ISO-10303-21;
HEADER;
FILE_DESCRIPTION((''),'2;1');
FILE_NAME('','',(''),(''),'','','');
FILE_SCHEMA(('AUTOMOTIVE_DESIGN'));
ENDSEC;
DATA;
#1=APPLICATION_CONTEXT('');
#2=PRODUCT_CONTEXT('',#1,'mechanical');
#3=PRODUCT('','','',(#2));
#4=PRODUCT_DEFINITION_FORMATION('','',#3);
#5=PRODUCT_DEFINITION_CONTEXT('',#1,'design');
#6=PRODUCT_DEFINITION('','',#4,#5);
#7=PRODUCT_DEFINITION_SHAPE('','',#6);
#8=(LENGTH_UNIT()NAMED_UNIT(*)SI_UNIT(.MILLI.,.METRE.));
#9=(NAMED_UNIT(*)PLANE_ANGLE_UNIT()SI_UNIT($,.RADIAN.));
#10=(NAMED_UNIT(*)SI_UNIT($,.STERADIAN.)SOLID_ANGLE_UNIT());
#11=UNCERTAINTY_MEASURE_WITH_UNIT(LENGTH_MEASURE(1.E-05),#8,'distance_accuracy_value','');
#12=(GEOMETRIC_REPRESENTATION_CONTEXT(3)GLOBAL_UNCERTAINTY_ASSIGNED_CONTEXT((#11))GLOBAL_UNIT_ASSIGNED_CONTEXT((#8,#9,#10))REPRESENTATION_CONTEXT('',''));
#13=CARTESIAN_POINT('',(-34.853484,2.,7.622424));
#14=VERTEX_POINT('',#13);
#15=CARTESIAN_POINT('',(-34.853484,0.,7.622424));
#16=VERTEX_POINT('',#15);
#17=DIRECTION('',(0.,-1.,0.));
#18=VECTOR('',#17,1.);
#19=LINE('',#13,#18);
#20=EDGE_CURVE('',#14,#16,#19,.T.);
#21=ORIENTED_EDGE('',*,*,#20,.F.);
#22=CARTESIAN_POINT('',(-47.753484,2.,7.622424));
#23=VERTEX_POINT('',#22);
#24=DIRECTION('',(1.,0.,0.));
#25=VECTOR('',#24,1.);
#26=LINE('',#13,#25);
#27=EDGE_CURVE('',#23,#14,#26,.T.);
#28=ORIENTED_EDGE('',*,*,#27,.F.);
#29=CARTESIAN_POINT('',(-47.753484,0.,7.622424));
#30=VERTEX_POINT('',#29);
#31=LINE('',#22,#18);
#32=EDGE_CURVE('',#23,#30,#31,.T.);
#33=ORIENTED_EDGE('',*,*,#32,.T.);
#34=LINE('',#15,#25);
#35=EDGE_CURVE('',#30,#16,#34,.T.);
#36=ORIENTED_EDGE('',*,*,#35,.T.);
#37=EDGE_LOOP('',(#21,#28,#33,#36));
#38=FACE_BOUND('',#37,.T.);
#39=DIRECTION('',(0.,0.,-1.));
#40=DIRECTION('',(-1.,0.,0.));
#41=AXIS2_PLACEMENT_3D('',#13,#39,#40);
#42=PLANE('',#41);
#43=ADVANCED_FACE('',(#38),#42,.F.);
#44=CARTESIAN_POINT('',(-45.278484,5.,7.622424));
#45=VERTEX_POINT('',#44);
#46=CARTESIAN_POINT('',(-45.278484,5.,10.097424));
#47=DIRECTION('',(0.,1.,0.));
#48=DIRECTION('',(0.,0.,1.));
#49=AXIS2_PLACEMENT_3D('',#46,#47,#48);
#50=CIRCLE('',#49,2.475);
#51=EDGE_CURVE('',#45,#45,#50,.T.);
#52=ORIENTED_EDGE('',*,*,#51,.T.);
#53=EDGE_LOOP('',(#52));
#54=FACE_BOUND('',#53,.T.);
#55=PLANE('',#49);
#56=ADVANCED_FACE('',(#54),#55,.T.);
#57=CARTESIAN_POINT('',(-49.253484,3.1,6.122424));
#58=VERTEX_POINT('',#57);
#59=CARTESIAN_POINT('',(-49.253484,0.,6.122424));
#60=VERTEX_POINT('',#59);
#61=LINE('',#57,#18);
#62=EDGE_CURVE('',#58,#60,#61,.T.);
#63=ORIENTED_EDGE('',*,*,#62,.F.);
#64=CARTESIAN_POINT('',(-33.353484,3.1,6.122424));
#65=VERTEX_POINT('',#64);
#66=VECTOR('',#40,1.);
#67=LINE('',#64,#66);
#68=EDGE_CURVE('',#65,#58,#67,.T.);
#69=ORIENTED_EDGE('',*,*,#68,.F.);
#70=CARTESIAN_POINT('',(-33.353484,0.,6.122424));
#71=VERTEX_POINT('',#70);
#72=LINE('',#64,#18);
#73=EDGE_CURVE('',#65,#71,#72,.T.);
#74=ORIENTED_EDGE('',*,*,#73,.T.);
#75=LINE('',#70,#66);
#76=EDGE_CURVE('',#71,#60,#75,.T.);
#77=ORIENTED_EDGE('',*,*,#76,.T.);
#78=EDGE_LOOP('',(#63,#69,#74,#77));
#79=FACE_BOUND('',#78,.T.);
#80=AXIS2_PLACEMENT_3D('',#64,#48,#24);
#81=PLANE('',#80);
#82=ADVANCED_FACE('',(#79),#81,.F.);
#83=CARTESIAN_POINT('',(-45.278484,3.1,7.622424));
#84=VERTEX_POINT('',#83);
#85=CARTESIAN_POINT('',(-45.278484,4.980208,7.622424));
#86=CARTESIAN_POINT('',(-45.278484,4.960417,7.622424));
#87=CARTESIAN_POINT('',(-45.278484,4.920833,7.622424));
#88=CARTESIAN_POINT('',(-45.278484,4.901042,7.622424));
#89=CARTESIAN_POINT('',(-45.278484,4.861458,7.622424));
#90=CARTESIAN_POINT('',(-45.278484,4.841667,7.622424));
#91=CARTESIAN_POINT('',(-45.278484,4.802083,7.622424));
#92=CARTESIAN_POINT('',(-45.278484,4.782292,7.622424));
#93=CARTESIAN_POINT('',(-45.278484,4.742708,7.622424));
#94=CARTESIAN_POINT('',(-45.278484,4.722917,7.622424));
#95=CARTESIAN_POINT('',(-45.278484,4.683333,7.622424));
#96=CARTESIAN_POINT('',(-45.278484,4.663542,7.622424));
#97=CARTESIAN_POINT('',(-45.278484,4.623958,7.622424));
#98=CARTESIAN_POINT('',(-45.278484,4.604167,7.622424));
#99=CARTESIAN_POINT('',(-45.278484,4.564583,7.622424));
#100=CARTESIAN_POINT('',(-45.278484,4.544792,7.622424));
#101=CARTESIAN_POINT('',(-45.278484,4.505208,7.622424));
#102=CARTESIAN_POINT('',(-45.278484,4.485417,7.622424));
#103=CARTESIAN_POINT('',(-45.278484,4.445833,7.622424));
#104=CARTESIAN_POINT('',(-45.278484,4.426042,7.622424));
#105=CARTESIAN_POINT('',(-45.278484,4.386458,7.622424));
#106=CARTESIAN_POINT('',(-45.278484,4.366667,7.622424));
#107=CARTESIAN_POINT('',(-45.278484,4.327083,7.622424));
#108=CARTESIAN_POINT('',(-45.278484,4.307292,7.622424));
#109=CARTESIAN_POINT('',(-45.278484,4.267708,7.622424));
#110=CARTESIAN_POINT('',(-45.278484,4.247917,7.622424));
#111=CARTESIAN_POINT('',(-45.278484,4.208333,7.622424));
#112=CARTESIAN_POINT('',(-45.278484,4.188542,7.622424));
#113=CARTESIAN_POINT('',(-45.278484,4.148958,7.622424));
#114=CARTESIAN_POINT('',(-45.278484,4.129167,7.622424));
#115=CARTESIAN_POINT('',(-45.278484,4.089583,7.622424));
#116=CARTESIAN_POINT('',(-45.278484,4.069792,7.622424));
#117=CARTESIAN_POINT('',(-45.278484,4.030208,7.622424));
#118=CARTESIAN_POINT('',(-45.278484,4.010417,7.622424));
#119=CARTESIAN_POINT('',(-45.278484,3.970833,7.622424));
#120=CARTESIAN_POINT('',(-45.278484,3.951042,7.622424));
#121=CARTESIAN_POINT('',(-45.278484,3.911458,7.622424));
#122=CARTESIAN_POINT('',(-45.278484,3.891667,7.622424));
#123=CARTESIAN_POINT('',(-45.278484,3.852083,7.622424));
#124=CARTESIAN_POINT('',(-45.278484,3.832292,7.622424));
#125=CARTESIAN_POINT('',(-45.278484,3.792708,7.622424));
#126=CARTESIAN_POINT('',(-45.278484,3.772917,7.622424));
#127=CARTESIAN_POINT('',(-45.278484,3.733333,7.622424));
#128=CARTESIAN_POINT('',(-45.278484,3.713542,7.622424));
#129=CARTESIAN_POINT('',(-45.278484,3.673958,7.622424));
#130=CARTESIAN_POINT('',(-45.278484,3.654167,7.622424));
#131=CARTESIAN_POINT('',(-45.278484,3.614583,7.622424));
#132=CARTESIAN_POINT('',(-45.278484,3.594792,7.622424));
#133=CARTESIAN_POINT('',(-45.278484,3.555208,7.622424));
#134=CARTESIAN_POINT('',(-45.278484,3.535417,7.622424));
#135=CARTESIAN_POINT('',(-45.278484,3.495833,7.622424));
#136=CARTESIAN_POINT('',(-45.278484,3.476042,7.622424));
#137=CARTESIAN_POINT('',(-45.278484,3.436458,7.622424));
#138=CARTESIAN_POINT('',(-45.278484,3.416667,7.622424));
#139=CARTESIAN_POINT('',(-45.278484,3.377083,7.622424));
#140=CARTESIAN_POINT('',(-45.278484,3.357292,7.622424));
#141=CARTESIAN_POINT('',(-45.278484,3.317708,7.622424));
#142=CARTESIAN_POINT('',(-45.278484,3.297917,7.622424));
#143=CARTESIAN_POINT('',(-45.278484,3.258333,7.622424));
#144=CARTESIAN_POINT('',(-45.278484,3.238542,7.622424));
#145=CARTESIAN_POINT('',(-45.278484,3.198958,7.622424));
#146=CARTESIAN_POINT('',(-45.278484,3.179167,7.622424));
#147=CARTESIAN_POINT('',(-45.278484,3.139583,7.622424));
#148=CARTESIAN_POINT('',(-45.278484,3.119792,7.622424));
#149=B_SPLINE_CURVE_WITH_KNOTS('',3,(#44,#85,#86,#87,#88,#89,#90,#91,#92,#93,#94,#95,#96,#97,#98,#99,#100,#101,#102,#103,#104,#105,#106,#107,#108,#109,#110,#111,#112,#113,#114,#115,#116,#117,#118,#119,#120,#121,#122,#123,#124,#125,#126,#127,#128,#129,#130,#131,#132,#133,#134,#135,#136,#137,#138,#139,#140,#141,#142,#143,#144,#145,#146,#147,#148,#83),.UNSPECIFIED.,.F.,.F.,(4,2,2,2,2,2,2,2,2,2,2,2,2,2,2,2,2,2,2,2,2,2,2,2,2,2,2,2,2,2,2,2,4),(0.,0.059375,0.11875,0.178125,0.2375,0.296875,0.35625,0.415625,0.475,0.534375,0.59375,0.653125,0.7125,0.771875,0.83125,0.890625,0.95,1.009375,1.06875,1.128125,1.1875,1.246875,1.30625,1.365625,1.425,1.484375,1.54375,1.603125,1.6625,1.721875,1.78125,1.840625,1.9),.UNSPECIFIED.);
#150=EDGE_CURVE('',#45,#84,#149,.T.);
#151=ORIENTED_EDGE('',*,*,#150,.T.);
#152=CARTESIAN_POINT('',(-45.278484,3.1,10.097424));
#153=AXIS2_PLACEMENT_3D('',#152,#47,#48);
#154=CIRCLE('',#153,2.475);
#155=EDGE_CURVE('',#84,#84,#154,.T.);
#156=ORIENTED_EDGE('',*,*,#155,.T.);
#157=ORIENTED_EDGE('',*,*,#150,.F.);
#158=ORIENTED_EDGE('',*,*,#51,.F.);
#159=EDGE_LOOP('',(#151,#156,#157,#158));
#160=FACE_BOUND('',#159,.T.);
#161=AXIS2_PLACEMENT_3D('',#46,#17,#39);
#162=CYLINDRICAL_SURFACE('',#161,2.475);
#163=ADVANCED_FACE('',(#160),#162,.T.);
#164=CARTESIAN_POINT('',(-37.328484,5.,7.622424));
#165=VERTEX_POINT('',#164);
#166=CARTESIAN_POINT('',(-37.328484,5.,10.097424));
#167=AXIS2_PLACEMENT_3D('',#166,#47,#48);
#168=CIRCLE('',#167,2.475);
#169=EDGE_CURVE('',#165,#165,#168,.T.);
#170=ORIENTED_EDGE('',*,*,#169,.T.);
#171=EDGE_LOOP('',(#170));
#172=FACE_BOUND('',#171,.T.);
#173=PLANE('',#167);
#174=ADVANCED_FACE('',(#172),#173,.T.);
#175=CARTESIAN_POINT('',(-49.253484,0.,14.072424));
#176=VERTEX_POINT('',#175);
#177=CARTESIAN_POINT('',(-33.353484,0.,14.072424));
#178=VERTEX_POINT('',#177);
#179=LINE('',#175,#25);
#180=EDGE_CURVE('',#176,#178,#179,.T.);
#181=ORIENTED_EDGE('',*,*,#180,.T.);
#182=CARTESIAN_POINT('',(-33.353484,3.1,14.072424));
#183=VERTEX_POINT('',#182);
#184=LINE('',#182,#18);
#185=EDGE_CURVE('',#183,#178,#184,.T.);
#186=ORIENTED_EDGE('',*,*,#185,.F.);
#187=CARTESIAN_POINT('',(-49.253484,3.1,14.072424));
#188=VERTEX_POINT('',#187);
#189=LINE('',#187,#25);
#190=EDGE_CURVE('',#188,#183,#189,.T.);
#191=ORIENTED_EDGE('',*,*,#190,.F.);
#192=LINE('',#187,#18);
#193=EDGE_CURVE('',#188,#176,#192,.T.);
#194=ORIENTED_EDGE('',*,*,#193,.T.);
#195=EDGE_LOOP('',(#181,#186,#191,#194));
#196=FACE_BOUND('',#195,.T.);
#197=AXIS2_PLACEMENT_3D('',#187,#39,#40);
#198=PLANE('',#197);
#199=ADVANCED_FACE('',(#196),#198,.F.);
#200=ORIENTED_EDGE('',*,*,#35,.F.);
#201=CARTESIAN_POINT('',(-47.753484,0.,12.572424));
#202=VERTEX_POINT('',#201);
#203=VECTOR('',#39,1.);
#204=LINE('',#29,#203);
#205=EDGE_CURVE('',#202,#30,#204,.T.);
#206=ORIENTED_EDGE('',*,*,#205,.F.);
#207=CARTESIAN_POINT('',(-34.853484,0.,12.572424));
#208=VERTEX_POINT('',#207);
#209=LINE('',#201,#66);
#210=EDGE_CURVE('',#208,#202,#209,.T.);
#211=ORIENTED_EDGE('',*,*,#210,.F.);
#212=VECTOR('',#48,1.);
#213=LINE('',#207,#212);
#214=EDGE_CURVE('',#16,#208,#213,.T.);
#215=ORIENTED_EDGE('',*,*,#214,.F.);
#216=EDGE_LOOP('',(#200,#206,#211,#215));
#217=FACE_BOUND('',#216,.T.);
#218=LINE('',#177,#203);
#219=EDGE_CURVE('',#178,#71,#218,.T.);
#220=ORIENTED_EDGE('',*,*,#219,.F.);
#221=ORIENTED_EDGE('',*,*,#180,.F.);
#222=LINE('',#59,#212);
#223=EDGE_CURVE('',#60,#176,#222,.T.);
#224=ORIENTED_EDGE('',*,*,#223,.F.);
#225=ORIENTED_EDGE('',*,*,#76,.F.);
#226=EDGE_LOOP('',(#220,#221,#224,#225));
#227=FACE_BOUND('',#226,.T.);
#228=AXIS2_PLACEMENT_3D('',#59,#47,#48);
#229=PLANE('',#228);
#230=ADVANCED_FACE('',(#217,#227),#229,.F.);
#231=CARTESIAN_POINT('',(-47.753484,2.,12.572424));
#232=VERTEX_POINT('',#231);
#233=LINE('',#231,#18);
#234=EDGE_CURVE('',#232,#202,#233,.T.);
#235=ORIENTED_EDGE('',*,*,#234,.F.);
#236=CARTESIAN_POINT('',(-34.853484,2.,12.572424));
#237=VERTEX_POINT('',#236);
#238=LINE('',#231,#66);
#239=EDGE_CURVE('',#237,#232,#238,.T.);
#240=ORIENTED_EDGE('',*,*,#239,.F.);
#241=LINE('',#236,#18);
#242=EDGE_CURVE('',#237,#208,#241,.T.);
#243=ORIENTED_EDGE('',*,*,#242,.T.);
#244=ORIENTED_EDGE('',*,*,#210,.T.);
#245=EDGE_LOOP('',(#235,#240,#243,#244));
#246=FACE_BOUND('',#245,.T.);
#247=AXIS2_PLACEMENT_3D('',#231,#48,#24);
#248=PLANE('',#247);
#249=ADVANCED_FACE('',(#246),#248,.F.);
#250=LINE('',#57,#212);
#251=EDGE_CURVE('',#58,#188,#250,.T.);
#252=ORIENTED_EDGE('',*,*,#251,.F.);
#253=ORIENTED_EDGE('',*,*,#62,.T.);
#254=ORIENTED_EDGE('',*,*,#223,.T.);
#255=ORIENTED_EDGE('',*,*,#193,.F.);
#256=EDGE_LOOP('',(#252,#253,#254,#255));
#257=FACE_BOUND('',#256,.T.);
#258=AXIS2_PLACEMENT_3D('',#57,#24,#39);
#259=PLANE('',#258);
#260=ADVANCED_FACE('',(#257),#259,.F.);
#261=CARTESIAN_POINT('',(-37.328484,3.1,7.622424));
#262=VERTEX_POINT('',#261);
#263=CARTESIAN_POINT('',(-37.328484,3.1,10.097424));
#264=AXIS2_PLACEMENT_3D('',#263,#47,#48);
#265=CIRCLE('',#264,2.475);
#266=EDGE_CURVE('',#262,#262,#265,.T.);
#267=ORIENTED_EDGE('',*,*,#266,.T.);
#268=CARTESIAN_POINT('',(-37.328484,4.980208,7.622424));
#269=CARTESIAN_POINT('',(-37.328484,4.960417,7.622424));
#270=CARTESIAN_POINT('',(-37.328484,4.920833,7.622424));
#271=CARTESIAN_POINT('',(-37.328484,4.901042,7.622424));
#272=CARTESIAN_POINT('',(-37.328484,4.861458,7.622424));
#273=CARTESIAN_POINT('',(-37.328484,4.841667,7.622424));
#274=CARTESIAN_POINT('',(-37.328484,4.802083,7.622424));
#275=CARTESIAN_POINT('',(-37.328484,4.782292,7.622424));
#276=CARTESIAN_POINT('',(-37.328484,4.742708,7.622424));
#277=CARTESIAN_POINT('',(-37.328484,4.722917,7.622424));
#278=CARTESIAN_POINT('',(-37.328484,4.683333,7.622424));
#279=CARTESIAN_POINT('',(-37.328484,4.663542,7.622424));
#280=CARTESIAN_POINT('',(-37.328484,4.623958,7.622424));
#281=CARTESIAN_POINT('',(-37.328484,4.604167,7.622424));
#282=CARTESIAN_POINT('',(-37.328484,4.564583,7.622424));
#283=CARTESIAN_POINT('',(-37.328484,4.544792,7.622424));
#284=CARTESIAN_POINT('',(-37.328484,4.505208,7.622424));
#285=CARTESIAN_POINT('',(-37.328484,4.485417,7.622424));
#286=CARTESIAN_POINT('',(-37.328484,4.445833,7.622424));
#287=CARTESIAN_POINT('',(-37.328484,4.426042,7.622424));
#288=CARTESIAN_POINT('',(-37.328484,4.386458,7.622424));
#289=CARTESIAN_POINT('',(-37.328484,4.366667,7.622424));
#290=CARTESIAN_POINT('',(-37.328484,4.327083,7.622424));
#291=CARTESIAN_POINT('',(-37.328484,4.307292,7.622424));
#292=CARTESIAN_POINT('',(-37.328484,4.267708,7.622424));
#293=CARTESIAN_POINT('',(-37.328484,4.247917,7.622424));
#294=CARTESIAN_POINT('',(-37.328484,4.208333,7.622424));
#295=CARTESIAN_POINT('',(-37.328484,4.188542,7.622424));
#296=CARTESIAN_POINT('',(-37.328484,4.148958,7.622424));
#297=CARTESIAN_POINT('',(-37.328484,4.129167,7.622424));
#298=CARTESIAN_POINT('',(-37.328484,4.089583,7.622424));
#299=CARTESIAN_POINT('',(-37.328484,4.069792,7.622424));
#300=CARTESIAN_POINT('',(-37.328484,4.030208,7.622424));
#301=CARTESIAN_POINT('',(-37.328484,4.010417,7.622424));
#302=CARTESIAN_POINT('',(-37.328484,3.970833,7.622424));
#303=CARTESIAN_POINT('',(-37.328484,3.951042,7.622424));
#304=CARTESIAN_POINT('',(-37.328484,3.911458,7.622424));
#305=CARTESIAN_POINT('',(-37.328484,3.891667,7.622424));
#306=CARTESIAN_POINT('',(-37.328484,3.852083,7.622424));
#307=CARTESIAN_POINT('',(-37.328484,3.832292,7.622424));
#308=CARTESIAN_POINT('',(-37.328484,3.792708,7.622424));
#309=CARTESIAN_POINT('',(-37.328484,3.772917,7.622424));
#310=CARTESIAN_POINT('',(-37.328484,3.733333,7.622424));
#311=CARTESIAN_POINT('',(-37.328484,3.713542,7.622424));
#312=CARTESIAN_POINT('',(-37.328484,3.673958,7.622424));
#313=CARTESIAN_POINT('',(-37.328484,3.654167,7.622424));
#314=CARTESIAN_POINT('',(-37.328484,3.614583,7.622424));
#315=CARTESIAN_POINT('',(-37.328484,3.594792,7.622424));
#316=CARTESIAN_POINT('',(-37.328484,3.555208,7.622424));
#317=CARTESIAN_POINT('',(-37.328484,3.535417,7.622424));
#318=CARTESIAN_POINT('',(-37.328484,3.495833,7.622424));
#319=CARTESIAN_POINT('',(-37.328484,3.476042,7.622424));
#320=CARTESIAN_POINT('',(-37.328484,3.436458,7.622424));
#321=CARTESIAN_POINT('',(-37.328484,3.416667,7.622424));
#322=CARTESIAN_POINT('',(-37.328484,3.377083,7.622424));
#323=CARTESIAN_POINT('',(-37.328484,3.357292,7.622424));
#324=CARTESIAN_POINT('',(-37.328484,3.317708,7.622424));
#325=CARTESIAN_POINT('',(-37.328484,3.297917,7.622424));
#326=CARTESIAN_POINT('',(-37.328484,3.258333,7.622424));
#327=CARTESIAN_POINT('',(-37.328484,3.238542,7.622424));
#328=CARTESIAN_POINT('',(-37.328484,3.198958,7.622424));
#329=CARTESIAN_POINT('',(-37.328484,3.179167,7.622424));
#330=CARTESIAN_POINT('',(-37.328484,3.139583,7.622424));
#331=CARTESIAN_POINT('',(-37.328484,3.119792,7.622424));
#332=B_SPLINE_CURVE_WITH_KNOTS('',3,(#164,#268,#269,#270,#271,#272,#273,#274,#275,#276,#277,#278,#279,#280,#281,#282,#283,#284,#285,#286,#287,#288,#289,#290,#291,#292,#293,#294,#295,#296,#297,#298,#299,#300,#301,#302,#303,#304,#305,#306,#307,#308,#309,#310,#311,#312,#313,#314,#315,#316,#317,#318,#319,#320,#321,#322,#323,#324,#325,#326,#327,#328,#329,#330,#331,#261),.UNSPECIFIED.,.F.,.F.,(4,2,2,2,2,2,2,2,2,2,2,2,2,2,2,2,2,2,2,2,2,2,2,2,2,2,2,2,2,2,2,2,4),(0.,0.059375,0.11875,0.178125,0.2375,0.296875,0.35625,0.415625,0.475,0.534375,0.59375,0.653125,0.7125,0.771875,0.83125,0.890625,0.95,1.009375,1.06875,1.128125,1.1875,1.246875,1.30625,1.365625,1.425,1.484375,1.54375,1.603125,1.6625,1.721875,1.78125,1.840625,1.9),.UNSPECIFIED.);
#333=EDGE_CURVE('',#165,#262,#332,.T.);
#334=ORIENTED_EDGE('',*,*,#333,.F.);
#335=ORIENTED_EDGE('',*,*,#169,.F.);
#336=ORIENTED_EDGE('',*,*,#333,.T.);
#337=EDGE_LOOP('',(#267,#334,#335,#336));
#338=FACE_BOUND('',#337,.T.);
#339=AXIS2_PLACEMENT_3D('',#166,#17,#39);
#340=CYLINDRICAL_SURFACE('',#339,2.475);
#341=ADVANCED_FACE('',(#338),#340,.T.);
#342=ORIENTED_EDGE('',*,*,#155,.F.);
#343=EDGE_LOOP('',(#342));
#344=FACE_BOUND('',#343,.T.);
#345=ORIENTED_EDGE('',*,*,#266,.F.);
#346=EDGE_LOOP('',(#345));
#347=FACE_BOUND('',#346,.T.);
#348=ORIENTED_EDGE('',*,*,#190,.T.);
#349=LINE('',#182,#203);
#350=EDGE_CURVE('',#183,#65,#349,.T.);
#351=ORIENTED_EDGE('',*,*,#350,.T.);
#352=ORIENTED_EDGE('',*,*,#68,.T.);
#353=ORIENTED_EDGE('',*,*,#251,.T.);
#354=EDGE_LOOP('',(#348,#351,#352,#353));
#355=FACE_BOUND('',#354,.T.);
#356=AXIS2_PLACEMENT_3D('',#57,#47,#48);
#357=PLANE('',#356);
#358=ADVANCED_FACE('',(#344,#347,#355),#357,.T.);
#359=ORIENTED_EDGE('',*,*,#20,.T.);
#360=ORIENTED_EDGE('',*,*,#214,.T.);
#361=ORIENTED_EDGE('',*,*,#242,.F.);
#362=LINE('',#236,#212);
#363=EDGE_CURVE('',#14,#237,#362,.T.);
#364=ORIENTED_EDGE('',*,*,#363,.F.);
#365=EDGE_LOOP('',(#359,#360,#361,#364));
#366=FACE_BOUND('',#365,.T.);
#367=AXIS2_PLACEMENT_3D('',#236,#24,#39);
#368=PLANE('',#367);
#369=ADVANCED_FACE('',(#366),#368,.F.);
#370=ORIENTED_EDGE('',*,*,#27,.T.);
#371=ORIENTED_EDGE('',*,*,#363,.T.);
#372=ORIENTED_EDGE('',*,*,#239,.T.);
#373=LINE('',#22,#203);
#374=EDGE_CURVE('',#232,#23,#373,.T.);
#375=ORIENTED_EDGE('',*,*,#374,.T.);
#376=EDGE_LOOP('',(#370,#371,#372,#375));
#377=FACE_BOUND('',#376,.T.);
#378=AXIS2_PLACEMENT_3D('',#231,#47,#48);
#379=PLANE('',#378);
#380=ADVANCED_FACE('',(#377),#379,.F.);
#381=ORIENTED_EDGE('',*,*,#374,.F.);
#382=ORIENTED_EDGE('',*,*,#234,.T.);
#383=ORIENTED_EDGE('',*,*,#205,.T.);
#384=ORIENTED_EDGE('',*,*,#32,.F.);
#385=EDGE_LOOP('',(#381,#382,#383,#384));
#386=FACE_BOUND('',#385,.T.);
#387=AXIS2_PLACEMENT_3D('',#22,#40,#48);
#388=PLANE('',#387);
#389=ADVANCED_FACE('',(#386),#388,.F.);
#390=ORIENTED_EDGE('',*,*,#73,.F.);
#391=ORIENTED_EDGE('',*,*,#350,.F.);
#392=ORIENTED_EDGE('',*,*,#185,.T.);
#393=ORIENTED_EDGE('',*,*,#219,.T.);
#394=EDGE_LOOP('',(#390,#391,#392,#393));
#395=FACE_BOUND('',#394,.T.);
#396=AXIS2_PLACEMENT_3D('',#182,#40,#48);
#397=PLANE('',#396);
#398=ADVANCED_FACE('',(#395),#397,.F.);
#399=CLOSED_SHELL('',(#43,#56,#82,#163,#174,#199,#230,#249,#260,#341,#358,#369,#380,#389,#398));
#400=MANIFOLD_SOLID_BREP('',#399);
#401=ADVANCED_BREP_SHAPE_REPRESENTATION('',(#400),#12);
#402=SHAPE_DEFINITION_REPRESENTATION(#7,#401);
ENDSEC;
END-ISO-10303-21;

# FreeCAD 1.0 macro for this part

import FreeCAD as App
import Part
import Sketcher

V = App.Vector

doc = App.newDocument("Part")
params = doc.addObject("Spreadsheet::Sheet", "Params")
for row, (alias, value) in enumerate([
    ("sketch1_width", "15.9 mm"),
    ("sketch1_height", "7.95 mm"),
    ("pad1_length", "3.1 mm"),
    ("sketch2_diameter", "4.95 mm"),
    ("pad2_length", "1.9 mm"),
    ("sketch3_width", "12.9 mm"),
    ("sketch3_height", "4.95 mm"),
    ("pocket1_length", "2 mm"),
], start=1):
    params.set(f"A{row}", alias)
    params.set(f"B{row}", "=" + value)
    params.setAlias(f"B{row}", alias)

body = doc.addObject("PartDesign::Body", "Body")

# Sketch on XZ plane
sketch1 = body.newObject("Sketcher::SketchObject", "Sketch")
sketch1.AttachmentSupport = (doc.getObject("XZ_Plane"), [""])
sketch1.MapMode = "FlatFace"
sketch1.addGeometry(Part.LineSegment(V(-49, 6, 0), V(-49, 14, 0)), False)
sketch1.addGeometry(Part.LineSegment(V(-49, 14, 0), V(-33, 14, 0)), False)
sketch1.addGeometry(Part.LineSegment(V(-33, 14, 0), V(-33, 6, 0)), False)
sketch1.addGeometry(Part.LineSegment(V(-33, 6, 0), V(-49, 6, 0)), False)
sketch1.addConstraint(Sketcher.Constraint("Coincident", 0, 2, 1, 1))
sketch1.addConstraint(Sketcher.Constraint("Coincident", 1, 2, 2, 1))
sketch1.addConstraint(Sketcher.Constraint("Coincident", 2, 2, 3, 1))
sketch1.addConstraint(Sketcher.Constraint("Coincident", 3, 2, 0, 1))
sketch1.addConstraint(Sketcher.Constraint("Vertical", 0))
sketch1.addConstraint(Sketcher.Constraint("Horizontal", 1))
sketch1.addConstraint(Sketcher.Constraint("Vertical", 2))
sketch1.addConstraint(Sketcher.Constraint("Horizontal", 3))
sketch1.addConstraint(Sketcher.Constraint("DistanceX", 1, 1, 1, 2, 15.9))
sketch1.addConstraint(Sketcher.Constraint("DistanceY", 0, 1, 0, 2, 7.95))
sketch1.addConstraint(Sketcher.Constraint("DistanceX", 0, 2, -1, 1, 49.253484))
sketch1.addConstraint(Sketcher.Constraint("DistanceY", -1, 1, 0, 2, 14.072424))
sketch1.setExpression("Constraints[8]", "Params.sketch1_width")
sketch1.setExpression("Constraints[9]", "Params.sketch1_height")
pad1 = body.newObject("PartDesign::Pad", "Pad")
pad1.Profile = sketch1
pad1.setExpression("Length", "Params.pad1_length")
pad1.Reversed = True

# Sketch on XZ plane
sketch2 = body.newObject("Sketcher::SketchObject", "Sketch001")
sketch2.AttachmentSupport = (doc.getObject("XZ_Plane"), [""])
sketch2.MapMode = "FlatFace"
sketch2.AttachmentOffset = App.Placement(V(0, 0, -3.1), App.Rotation())
sketch2.addGeometry(Part.Circle(V(-45.3, 10.1, 0), V(0, 0, 1), 2.5), False)
sketch2.addGeometry(Part.Circle(V(-37.3, 10.1, 0), V(0, 0, 1), 2.5), False)
sketch2.addConstraint(Sketcher.Constraint("Equal", 0, 1))
sketch2.addConstraint(Sketcher.Constraint("Horizontal", 0, 3, 1, 3))
sketch2.addConstraint(Sketcher.Constraint("Diameter", 0, 4.95))
sketch2.addConstraint(Sketcher.Constraint("DistanceX", 0, 3, 1, 3, 7.95))
sketch2.addConstraint(Sketcher.Constraint("DistanceX", 0, 3, -1, 1, 45.278484))
sketch2.addConstraint(Sketcher.Constraint("DistanceY", -1, 1, 0, 3, 10.097424))
sketch2.setExpression("Constraints[2]", "Params.sketch2_diameter")
pad2 = body.newObject("PartDesign::Pad", "Pad001")
pad2.Profile = sketch2
pad2.setExpression("Length", "Params.pad2_length")
pad2.Reversed = True

# Sketch on XZ plane
sketch3 = body.newObject("Sketcher::SketchObject", "Sketch002")
sketch3.AttachmentSupport = (doc.getObject("XZ_Plane"), [""])
sketch3.MapMode = "FlatFace"
sketch3.addGeometry(Part.LineSegment(V(-47.8, 12.6, 0), V(-47.8, 7.6, 0)), False)
sketch3.addGeometry(Part.LineSegment(V(-47.8, 7.6, 0), V(-34.9, 7.6, 0)), False)
sketch3.addGeometry(Part.LineSegment(V(-34.9, 7.6, 0), V(-34.9, 12.6, 0)), False)
sketch3.addGeometry(Part.LineSegment(V(-34.9, 12.6, 0), V(-47.8, 12.6, 0)), False)
sketch3.addConstraint(Sketcher.Constraint("Coincident", 0, 2, 1, 1))
sketch3.addConstraint(Sketcher.Constraint("Coincident", 1, 2, 2, 1))
sketch3.addConstraint(Sketcher.Constraint("Coincident", 2, 2, 3, 1))
sketch3.addConstraint(Sketcher.Constraint("Coincident", 3, 2, 0, 1))
sketch3.addConstraint(Sketcher.Constraint("Vertical", 0))
sketch3.addConstraint(Sketcher.Constraint("Horizontal", 1))
sketch3.addConstraint(Sketcher.Constraint("Vertical", 2))
sketch3.addConstraint(Sketcher.Constraint("Horizontal", 3))
sketch3.addConstraint(Sketcher.Constraint("DistanceX", 1, 1, 1, 2, 12.9))
sketch3.addConstraint(Sketcher.Constraint("DistanceY", 0, 2, 0, 1, 4.95))
sketch3.addConstraint(Sketcher.Constraint("DistanceX", 0, 2, -1, 1, 47.753484))
sketch3.addConstraint(Sketcher.Constraint("DistanceY", -1, 1, 0, 2, 7.622424))
sketch3.setExpression("Constraints[8]", "Params.sketch3_width")
sketch3.setExpression("Constraints[9]", "Params.sketch3_height")
pocket1 = body.newObject("PartDesign::Pocket", "Pocket")
pocket1.Profile = sketch3
pocket1.setExpression("Length", "Params.pocket1_length")

doc.recompute()
